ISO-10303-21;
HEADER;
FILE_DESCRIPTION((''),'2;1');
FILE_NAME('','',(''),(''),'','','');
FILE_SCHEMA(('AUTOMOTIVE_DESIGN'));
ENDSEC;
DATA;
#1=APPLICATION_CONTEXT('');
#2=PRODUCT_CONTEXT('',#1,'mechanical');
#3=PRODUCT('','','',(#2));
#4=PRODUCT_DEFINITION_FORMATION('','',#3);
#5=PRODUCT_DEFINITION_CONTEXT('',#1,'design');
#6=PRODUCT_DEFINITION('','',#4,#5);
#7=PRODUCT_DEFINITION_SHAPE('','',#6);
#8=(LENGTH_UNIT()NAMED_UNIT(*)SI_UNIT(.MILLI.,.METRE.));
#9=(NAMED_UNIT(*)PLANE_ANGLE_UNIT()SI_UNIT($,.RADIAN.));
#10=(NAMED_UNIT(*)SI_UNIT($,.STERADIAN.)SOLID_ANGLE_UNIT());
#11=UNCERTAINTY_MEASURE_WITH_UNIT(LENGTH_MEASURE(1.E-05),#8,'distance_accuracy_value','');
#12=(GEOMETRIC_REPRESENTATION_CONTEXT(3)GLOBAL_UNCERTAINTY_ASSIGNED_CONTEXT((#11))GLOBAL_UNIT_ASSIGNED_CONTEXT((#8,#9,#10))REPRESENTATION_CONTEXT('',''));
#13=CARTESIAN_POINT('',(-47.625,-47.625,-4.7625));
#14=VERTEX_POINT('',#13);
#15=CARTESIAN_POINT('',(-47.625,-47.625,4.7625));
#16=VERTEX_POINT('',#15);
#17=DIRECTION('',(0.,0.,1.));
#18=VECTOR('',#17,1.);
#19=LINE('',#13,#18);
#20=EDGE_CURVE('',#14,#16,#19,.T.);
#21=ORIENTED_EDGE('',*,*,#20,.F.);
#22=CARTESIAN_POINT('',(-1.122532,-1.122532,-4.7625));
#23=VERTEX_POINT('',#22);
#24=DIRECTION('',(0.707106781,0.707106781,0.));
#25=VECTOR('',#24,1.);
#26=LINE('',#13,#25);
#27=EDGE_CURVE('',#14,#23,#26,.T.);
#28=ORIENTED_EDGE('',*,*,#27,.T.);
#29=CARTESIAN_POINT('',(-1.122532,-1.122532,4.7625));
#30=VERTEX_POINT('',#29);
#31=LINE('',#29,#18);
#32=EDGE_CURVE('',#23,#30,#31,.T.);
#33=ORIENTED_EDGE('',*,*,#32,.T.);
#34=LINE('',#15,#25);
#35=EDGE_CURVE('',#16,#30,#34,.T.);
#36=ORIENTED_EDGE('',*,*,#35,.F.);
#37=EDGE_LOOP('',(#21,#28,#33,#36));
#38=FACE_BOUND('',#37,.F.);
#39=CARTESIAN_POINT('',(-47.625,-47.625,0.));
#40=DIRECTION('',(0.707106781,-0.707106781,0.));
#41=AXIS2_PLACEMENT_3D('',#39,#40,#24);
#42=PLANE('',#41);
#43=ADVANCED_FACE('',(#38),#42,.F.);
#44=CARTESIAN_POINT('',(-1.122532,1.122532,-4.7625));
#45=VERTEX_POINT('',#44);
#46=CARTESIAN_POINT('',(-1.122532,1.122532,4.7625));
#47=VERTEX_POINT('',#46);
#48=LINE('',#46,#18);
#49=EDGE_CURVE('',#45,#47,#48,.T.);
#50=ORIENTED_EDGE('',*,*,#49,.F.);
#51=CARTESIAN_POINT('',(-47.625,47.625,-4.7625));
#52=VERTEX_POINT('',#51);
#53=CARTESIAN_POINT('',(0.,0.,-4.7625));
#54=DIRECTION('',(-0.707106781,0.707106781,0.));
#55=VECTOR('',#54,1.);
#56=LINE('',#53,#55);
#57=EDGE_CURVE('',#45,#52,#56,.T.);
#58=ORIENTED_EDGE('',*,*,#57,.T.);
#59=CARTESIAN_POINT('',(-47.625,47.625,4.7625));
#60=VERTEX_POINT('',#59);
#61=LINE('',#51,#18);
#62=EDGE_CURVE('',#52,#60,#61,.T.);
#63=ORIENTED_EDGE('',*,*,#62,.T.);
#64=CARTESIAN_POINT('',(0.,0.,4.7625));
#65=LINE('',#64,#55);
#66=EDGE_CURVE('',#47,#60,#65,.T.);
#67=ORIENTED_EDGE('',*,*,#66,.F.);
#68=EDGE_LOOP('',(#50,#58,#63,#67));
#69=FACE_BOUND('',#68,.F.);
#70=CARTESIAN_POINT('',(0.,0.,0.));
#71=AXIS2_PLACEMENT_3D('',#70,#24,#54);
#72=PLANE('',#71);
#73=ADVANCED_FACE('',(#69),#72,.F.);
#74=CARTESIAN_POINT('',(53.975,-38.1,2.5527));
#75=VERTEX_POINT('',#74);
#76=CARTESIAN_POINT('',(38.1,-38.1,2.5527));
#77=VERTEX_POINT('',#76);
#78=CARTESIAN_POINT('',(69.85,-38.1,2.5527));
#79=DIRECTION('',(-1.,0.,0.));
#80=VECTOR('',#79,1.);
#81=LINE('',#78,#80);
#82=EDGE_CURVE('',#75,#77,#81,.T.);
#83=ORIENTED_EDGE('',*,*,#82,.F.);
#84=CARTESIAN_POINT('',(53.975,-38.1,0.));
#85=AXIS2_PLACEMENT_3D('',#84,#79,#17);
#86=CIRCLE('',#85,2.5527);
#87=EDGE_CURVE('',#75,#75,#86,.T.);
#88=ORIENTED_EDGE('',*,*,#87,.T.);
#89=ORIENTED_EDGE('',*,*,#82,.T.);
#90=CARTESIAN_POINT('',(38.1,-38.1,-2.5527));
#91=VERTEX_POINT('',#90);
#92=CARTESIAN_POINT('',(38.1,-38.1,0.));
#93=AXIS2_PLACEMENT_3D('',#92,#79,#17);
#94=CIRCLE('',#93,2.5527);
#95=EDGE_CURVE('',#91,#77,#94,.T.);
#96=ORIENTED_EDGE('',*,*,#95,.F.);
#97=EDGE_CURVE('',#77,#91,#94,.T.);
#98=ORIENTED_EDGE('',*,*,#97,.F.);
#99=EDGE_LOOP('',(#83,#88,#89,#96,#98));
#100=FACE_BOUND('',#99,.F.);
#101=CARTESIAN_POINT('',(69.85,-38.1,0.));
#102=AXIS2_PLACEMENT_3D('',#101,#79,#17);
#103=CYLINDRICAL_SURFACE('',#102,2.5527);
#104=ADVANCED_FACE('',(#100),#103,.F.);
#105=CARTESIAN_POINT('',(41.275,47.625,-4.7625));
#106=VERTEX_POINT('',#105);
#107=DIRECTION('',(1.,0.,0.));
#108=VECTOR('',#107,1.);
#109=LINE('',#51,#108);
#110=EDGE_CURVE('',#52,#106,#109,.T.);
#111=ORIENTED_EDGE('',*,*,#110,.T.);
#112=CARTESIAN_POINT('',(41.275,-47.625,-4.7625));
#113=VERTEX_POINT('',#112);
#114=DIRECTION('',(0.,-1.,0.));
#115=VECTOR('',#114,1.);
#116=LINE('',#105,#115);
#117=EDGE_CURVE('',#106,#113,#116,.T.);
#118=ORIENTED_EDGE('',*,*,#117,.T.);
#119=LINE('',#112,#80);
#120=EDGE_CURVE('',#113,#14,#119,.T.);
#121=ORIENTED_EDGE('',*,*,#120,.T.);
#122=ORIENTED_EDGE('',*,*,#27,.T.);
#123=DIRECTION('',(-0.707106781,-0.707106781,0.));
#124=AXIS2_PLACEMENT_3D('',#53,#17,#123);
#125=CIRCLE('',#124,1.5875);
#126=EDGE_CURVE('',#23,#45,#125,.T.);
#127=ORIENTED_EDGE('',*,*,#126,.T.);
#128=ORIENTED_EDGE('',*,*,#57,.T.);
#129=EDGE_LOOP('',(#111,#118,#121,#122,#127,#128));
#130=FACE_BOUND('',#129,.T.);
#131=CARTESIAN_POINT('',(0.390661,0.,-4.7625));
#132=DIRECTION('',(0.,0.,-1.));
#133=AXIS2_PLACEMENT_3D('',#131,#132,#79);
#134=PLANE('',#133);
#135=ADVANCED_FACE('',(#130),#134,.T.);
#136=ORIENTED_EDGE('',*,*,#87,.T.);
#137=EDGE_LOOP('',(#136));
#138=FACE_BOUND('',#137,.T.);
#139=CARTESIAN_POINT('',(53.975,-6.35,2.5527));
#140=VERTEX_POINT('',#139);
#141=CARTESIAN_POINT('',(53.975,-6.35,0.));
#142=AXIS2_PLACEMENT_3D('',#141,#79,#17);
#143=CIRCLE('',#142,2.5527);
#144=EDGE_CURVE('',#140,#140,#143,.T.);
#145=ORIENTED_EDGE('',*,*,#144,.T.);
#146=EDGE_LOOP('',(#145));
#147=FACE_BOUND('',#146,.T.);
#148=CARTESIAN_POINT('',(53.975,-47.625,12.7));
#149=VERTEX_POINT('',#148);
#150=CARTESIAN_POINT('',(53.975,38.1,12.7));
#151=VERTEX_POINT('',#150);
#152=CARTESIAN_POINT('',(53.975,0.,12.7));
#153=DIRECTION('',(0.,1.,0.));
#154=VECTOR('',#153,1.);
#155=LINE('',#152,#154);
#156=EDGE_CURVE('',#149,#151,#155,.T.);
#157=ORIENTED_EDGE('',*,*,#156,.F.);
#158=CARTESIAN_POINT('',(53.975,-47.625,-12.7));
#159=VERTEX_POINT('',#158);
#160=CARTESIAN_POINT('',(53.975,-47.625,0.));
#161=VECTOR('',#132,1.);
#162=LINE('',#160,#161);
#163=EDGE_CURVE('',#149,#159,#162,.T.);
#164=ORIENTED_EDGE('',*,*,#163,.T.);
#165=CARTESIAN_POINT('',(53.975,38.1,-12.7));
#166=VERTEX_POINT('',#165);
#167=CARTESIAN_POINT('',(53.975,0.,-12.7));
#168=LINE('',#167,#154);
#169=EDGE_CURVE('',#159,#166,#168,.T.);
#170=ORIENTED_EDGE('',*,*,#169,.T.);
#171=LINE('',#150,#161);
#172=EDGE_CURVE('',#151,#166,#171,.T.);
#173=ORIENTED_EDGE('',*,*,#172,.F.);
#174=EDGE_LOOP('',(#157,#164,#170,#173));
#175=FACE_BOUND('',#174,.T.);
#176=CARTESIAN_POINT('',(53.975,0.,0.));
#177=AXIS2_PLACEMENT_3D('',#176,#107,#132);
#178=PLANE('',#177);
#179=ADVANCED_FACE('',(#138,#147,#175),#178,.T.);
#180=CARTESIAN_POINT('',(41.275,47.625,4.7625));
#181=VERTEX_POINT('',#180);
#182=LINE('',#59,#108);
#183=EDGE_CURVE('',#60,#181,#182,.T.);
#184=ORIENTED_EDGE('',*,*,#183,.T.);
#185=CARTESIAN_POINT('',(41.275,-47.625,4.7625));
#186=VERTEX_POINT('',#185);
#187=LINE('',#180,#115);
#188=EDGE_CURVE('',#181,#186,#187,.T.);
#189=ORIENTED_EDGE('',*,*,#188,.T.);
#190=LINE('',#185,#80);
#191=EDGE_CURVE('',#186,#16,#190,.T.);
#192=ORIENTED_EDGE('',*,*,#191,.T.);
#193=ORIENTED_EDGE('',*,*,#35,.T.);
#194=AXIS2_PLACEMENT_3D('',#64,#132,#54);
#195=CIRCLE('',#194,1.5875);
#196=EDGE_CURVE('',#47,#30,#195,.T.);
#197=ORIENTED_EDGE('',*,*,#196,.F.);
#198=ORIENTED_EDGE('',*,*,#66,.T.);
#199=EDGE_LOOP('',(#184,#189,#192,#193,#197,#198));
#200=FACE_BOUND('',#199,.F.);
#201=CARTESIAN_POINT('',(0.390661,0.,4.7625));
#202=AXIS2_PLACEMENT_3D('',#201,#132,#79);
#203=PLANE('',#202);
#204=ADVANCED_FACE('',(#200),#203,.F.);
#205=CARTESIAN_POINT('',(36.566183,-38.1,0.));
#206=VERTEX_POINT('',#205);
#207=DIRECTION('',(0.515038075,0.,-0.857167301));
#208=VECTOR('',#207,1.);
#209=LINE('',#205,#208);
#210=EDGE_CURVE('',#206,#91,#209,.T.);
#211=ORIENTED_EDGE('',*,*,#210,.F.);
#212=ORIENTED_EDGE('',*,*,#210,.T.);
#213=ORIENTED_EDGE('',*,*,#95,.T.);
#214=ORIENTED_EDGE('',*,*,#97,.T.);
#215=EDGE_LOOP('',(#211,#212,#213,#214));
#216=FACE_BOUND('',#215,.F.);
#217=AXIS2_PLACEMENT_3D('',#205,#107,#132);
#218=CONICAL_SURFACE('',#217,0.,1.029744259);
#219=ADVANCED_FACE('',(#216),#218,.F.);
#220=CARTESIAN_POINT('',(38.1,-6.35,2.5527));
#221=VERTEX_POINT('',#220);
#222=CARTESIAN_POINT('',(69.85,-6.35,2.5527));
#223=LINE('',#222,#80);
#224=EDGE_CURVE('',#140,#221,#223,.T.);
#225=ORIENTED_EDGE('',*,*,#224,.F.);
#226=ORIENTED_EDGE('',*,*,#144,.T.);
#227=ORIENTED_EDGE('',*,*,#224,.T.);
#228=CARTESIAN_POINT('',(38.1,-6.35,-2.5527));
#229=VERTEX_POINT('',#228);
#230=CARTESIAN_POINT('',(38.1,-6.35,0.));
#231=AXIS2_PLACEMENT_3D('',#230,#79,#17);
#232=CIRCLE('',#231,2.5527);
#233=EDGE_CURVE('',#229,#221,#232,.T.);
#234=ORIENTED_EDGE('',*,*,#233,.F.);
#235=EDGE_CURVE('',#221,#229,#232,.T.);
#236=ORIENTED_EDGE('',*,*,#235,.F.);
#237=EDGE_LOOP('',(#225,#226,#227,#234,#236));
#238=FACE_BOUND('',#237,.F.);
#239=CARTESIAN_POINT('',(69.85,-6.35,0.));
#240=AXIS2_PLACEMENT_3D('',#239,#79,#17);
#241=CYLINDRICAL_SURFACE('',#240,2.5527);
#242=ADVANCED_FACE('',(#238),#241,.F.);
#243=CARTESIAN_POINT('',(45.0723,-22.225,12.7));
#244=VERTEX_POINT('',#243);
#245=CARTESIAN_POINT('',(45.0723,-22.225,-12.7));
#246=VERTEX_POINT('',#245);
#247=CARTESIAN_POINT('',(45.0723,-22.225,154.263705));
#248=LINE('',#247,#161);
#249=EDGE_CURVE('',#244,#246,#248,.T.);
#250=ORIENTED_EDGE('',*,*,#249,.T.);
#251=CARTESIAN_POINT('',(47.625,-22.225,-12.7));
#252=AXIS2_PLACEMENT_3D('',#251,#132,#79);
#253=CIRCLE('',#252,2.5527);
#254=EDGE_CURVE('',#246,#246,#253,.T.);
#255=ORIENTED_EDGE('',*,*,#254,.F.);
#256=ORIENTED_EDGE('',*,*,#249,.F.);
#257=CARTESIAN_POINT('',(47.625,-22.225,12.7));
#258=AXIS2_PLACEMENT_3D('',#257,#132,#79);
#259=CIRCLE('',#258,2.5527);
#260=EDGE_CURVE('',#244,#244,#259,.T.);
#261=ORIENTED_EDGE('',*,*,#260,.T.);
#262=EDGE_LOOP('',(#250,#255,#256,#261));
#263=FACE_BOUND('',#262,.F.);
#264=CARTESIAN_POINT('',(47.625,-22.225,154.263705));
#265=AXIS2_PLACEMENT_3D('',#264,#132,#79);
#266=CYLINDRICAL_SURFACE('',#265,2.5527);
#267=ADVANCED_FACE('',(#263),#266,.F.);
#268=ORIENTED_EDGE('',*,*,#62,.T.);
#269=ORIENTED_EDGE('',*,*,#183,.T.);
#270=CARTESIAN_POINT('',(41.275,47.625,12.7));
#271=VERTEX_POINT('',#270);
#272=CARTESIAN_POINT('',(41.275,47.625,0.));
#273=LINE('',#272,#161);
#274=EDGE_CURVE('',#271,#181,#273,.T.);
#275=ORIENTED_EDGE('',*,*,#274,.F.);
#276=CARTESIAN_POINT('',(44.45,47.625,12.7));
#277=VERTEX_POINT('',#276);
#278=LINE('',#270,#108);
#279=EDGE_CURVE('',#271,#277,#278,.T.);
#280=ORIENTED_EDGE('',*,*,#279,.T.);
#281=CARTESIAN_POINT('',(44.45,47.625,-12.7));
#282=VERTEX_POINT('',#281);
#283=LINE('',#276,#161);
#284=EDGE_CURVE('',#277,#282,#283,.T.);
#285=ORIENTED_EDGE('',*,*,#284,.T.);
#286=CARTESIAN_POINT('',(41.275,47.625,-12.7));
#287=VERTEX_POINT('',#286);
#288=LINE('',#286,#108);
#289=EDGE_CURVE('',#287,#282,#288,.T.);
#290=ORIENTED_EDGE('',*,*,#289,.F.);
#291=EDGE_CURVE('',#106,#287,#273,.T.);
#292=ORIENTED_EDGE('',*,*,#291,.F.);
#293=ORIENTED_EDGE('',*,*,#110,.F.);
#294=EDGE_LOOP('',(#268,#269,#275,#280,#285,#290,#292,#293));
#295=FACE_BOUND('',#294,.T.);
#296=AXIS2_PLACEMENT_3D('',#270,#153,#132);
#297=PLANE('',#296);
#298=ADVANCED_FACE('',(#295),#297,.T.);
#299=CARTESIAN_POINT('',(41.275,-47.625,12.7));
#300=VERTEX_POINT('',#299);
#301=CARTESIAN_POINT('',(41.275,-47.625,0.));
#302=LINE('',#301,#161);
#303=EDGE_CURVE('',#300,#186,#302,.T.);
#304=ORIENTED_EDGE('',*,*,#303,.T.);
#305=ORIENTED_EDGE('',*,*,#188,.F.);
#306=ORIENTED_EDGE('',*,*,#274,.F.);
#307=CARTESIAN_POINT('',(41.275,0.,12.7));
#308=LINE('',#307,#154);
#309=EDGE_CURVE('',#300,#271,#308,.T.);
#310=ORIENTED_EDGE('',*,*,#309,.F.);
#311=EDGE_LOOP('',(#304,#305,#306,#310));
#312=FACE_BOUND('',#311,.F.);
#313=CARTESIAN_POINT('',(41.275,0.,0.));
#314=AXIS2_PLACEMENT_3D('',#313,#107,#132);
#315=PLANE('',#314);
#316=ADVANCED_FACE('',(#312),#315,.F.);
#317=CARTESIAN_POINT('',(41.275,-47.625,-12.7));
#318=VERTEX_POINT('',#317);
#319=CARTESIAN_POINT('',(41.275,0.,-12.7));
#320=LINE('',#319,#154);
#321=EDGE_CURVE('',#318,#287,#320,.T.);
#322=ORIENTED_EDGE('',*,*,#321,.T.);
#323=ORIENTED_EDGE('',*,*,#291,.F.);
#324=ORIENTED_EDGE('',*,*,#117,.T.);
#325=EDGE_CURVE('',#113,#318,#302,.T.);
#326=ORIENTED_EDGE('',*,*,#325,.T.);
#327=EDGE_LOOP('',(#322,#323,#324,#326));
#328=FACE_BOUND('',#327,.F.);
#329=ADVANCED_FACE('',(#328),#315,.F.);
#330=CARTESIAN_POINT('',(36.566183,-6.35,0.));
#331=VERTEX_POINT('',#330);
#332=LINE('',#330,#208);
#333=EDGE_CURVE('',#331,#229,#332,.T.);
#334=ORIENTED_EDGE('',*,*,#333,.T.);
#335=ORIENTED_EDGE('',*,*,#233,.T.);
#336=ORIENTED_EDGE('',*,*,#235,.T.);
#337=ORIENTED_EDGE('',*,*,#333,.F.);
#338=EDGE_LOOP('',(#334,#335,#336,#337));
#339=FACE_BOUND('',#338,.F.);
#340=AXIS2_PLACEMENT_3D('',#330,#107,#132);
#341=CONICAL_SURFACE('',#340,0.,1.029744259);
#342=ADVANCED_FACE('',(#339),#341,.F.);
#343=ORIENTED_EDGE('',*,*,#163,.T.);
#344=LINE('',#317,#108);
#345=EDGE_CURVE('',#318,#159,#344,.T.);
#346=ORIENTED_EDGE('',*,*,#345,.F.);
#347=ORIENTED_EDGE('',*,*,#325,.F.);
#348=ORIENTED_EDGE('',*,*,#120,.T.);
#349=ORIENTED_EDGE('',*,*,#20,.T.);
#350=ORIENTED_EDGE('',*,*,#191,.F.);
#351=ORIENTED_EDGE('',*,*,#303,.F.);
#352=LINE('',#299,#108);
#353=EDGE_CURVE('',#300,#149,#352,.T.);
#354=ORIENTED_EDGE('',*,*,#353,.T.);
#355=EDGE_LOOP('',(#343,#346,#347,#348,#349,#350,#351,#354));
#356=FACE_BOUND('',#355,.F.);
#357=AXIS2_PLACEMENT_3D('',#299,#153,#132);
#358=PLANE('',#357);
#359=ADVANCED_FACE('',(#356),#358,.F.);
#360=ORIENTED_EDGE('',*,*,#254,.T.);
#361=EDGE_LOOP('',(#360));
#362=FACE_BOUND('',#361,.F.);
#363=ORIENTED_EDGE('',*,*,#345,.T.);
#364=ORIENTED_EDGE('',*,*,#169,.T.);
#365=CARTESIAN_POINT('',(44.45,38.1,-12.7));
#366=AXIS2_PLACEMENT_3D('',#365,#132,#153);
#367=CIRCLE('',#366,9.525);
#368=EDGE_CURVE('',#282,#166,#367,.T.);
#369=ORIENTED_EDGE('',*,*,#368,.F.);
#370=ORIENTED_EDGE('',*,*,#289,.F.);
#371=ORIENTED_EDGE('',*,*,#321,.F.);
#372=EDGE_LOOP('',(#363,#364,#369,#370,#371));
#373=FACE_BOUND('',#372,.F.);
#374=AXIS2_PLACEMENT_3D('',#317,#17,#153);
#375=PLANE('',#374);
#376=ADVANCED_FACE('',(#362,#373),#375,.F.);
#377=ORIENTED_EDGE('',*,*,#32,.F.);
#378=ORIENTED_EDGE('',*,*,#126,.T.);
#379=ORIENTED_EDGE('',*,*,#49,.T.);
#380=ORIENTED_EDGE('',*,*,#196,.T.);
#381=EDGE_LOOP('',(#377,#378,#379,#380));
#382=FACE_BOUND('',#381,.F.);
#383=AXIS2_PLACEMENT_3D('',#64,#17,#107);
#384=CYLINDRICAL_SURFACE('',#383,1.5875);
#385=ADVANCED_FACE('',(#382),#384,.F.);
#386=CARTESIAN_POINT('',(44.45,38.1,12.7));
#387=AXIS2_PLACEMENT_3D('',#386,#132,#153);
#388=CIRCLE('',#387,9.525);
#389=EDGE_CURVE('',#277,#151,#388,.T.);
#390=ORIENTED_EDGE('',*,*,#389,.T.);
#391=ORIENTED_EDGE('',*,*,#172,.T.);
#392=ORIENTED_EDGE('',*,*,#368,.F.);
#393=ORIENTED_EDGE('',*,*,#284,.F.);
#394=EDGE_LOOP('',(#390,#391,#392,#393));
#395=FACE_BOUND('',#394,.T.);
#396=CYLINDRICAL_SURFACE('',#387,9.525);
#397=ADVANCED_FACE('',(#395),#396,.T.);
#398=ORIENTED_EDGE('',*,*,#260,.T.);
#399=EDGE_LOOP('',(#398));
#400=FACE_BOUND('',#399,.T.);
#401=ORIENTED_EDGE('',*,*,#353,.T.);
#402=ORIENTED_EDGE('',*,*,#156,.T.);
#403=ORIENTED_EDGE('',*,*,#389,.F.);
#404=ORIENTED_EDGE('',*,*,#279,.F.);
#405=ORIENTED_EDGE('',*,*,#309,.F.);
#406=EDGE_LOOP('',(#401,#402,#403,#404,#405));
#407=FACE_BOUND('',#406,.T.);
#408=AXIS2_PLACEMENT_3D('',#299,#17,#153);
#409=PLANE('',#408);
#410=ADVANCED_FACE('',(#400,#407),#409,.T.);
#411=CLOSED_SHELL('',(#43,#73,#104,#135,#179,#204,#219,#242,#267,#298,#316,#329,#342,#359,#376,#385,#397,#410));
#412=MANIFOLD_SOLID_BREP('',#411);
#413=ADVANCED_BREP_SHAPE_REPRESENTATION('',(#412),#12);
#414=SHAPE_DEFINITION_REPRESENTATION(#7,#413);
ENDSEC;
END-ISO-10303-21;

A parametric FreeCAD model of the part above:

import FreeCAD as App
import Part
import Sketcher

V = App.Vector
Q = App.Units.Quantity


def edges_at(feature, points):
    """Names of the edges that pass closest to the given points."""
    edges = feature.Shape.Edges
    near = lambda p: min(range(len(edges)), key=lambda i: edges[i].distToShape(Part.Vertex(*p))[0])
    return sorted({f"Edge{near(p) + 1}" for p in points})

doc = App.newDocument("Part")
params = doc.addObject("Spreadsheet::Sheet", "Params")
for row, (alias, value) in enumerate([
    ("sketch1_width", "3.5 in"),
    ("sketch1_height", "3.75 in"),
    ("pad1_length", "0.375 in"),
    ("sketch2_diameter", "0.125 in"),
    ("sketch3_height", "1 in"),
    ("sketch3_width", "3.75 in"),
    ("pad2_length", "0.5 in"),
    ("fillet_radius", "0.375 in"),
    ("sketch4_diameter", "0.201 in"),
    ("hole_diameter", "0.201 in"),
    ("hole_depth", "0.625 in"),
    ("sketch5_diameter", "0.201 in"),
    ("hole2_diameter", "0.201 in"),
], start=1):
    params.set(f"A{row}", alias)
    params.set(f"B{row}", "=" + value)
    params.setAlias(f"B{row}", alias)

body = doc.addObject("PartDesign::Body", "Body")

sketch1 = body.newObject("Sketcher::SketchObject", "Sketch")
sketch1.AttachmentSupport = (doc.getObject("XY_Plane"), [""])
sketch1.MapMode = "FlatFace"
sketch1.addGeometry([
    Part.LineSegment(V(41, 48, 0), V(-48, 48, 0)),
    Part.LineSegment(V(-48, 48, 0), V(0, 0, 0)),
    Part.LineSegment(V(0, 0, 0), V(-48, -48, 0)),
    Part.LineSegment(V(-48, -48, 0), V(41, -48, 0)),
    Part.LineSegment(V(41, -48, 0), V(41, 48, 0)),
], False)
sketch1.addConstraint([
    Sketcher.Constraint("Coincident", 0, 2, 1, 1),
    Sketcher.Constraint("Coincident", 1, 2, 2, 1),
    Sketcher.Constraint("Coincident", 2, 2, 3, 1),
    Sketcher.Constraint("Coincident", 3, 2, 4, 1),
    Sketcher.Constraint("Coincident", 4, 2, 0, 1),
    Sketcher.Constraint("Horizontal", 0),
    Sketcher.Constraint("Horizontal", 3),
    Sketcher.Constraint("Vertical", 4),
    Sketcher.Constraint("Coincident", 1, 2, -1, 1),
    Sketcher.Constraint("Symmetric", 0, 2, 2, 2, -1),
    Sketcher.Constraint("Perpendicular", 1, 2),
    Sketcher.Constraint("DistanceX", 0, 2, 0, 1, Q("3.5 in")),
    Sketcher.Constraint("DistanceY", 4, 1, 4, 2, Q("3.75 in")),
])
sketch1.setExpression("Constraints[11]", "Params.sketch1_width")
sketch1.setExpression("Constraints[12]", "Params.sketch1_height")
pad1 = body.newObject("PartDesign::Pad", "Pad")
pad1.Profile = sketch1
pad1.setExpression("Length", "Params.pad1_length")
pad1.Midplane = True

sketch2 = body.newObject("Sketcher::SketchObject", "Sketch001")
sketch2.AttachmentSupport = (doc.getObject("XY_Plane"), [""])
sketch2.MapMode = "FlatFace"
sketch2.AttachmentOffset = App.Placement(V(0, 0, 0.1875 * 25.4), App.Rotation())
sketch2.addGeometry(Part.Circle(V(0, 0, 0), V(0, 0, 1), 1.6), False)
sketch2.addConstraint([
    Sketcher.Constraint("Coincident", 0, 3, -1, 1),
    Sketcher.Constraint("Diameter", 0, Q("0.125 in")),
])
sketch2.setExpression("Constraints[1]", "Params.sketch2_diameter")
pocket1 = body.newObject("PartDesign::Pocket", "Pocket")
pocket1.Profile = sketch2
pocket1.Type = "ThroughAll"

sketch3 = body.newObject("Sketcher::SketchObject", "Sketch002")
sketch3.AttachmentSupport = (doc.getObject("YZ_Plane"), [""])
sketch3.MapMode = "FlatFace"
sketch3.AttachmentOffset = App.Placement(V(0, 0, 1.625 * 25.4), App.Rotation())
sketch3.addGeometry([
    Part.LineSegment(V(48, 13, 0), V(-48, 13, 0)),
    Part.LineSegment(V(-48, 13, 0), V(-48, -13, 0)),
    Part.LineSegment(V(-48, -13, 0), V(48, -13, 0)),
    Part.LineSegment(V(48, -13, 0), V(48, 13, 0)),
], False)
sketch3.addConstraint([
    Sketcher.Constraint("Coincident", 0, 2, 1, 1),
    Sketcher.Constraint("Coincident", 1, 2, 2, 1),
    Sketcher.Constraint("Coincident", 2, 2, 3, 1),
    Sketcher.Constraint("Coincident", 3, 2, 0, 1),
    Sketcher.Constraint("Horizontal", 0),
    Sketcher.Constraint("Vertical", 1),
    Sketcher.Constraint("Horizontal", 2),
    Sketcher.Constraint("Vertical", 3),
    Sketcher.Constraint("Symmetric", 0, 2, 2, 2, -1, 1),
    Sketcher.Constraint("DistanceY", 1, 2, 1, 1, Q("1 in")),
    Sketcher.Constraint("DistanceX", 0, 2, 0, 1, Q("3.75 in")),
])
sketch3.setExpression("Constraints[9]", "Params.sketch3_height")
sketch3.setExpression("Constraints[10]", "Params.sketch3_width")
pad2 = body.newObject("PartDesign::Pad", "Pad001")
pad2.Profile = sketch3
pad2.setExpression("Length", "Params.pad2_length")
doc.recompute()

fillet = body.newObject("PartDesign::Fillet", "Fillet")
fillet.Base = (pad2, edges_at(pad2, [(53.975, 47.625, 0)]))
fillet.setExpression("Radius", "Params.fillet_radius")

sketch4 = body.newObject("Sketcher::SketchObject", "Sketch003")
sketch4.AttachmentSupport = (doc.getObject("YZ_Plane"), [""])
sketch4.MapMode = "FlatFace"
sketch4.AttachmentOffset = App.Placement(V(0, 0, 2.125 * 25.4), App.Rotation())
sketch4.addGeometry([
    Part.Circle(V(-38.1, 0, 0), V(0, 0, 1), 2.6),
    Part.Circle(V(-6.3, 0, 0), V(0, 0, 1), 2.6),
], False)
sketch4.addConstraint([
    Sketcher.Constraint("Equal", 0, 1),
    Sketcher.Constraint("PointOnObject", 0, 3, -1),
    Sketcher.Constraint("PointOnObject", 1, 3, -1),
    Sketcher.Constraint("Diameter", 0, Q("0.201 in")),
    Sketcher.Constraint("DistanceX", 0, 3, -1, 1, Q("1.5 in")),
    Sketcher.Constraint("DistanceX", 1, 3, -1, 1, Q("0.25 in")),
])
sketch4.setExpression("Constraints[3]", "Params.sketch4_diameter")
doc.recompute()
hole = body.newObject("PartDesign::Hole", "Hole")
hole.Profile = sketch4
hole.ThreadType = "None"
hole.setExpression("Diameter", "Params.hole_diameter")
hole.DepthType = "Dimension"
hole.setExpression("Depth", "Params.hole_depth")
hole.DrillPoint = "Angled"
hole.DrillPointAngle = 118

sketch5 = body.newObject("Sketcher::SketchObject", "Sketch004")
sketch5.AttachmentSupport = (doc.getObject("XY_Plane"), [""])
sketch5.MapMode = "FlatFace"
sketch5.AttachmentOffset = App.Placement(V(0, 0, 0.5 * 25.4), App.Rotation())
sketch5.addGeometry(Part.Circle(V(47.6, -22.2, 0), V(0, 0, 1), 2.6), False)
sketch5.addConstraint([
    Sketcher.Constraint("Diameter", 0, Q("0.201 in")),
    Sketcher.Constraint("DistanceX", -1, 1, 0, 3, Q("1.875 in")),
    Sketcher.Constraint("DistanceY", 0, 3, -1, 1, Q("0.875 in")),
])
sketch5.setExpression("Constraints[0]", "Params.sketch5_diameter")
doc.recompute()
hole2 = body.newObject("PartDesign::Hole", "Hole001")
hole2.Profile = sketch5
hole2.ThreadType = "None"
hole2.setExpression("Diameter", "Params.hole2_diameter")
hole2.DepthType = "ThroughAll"

doc.recompute()
